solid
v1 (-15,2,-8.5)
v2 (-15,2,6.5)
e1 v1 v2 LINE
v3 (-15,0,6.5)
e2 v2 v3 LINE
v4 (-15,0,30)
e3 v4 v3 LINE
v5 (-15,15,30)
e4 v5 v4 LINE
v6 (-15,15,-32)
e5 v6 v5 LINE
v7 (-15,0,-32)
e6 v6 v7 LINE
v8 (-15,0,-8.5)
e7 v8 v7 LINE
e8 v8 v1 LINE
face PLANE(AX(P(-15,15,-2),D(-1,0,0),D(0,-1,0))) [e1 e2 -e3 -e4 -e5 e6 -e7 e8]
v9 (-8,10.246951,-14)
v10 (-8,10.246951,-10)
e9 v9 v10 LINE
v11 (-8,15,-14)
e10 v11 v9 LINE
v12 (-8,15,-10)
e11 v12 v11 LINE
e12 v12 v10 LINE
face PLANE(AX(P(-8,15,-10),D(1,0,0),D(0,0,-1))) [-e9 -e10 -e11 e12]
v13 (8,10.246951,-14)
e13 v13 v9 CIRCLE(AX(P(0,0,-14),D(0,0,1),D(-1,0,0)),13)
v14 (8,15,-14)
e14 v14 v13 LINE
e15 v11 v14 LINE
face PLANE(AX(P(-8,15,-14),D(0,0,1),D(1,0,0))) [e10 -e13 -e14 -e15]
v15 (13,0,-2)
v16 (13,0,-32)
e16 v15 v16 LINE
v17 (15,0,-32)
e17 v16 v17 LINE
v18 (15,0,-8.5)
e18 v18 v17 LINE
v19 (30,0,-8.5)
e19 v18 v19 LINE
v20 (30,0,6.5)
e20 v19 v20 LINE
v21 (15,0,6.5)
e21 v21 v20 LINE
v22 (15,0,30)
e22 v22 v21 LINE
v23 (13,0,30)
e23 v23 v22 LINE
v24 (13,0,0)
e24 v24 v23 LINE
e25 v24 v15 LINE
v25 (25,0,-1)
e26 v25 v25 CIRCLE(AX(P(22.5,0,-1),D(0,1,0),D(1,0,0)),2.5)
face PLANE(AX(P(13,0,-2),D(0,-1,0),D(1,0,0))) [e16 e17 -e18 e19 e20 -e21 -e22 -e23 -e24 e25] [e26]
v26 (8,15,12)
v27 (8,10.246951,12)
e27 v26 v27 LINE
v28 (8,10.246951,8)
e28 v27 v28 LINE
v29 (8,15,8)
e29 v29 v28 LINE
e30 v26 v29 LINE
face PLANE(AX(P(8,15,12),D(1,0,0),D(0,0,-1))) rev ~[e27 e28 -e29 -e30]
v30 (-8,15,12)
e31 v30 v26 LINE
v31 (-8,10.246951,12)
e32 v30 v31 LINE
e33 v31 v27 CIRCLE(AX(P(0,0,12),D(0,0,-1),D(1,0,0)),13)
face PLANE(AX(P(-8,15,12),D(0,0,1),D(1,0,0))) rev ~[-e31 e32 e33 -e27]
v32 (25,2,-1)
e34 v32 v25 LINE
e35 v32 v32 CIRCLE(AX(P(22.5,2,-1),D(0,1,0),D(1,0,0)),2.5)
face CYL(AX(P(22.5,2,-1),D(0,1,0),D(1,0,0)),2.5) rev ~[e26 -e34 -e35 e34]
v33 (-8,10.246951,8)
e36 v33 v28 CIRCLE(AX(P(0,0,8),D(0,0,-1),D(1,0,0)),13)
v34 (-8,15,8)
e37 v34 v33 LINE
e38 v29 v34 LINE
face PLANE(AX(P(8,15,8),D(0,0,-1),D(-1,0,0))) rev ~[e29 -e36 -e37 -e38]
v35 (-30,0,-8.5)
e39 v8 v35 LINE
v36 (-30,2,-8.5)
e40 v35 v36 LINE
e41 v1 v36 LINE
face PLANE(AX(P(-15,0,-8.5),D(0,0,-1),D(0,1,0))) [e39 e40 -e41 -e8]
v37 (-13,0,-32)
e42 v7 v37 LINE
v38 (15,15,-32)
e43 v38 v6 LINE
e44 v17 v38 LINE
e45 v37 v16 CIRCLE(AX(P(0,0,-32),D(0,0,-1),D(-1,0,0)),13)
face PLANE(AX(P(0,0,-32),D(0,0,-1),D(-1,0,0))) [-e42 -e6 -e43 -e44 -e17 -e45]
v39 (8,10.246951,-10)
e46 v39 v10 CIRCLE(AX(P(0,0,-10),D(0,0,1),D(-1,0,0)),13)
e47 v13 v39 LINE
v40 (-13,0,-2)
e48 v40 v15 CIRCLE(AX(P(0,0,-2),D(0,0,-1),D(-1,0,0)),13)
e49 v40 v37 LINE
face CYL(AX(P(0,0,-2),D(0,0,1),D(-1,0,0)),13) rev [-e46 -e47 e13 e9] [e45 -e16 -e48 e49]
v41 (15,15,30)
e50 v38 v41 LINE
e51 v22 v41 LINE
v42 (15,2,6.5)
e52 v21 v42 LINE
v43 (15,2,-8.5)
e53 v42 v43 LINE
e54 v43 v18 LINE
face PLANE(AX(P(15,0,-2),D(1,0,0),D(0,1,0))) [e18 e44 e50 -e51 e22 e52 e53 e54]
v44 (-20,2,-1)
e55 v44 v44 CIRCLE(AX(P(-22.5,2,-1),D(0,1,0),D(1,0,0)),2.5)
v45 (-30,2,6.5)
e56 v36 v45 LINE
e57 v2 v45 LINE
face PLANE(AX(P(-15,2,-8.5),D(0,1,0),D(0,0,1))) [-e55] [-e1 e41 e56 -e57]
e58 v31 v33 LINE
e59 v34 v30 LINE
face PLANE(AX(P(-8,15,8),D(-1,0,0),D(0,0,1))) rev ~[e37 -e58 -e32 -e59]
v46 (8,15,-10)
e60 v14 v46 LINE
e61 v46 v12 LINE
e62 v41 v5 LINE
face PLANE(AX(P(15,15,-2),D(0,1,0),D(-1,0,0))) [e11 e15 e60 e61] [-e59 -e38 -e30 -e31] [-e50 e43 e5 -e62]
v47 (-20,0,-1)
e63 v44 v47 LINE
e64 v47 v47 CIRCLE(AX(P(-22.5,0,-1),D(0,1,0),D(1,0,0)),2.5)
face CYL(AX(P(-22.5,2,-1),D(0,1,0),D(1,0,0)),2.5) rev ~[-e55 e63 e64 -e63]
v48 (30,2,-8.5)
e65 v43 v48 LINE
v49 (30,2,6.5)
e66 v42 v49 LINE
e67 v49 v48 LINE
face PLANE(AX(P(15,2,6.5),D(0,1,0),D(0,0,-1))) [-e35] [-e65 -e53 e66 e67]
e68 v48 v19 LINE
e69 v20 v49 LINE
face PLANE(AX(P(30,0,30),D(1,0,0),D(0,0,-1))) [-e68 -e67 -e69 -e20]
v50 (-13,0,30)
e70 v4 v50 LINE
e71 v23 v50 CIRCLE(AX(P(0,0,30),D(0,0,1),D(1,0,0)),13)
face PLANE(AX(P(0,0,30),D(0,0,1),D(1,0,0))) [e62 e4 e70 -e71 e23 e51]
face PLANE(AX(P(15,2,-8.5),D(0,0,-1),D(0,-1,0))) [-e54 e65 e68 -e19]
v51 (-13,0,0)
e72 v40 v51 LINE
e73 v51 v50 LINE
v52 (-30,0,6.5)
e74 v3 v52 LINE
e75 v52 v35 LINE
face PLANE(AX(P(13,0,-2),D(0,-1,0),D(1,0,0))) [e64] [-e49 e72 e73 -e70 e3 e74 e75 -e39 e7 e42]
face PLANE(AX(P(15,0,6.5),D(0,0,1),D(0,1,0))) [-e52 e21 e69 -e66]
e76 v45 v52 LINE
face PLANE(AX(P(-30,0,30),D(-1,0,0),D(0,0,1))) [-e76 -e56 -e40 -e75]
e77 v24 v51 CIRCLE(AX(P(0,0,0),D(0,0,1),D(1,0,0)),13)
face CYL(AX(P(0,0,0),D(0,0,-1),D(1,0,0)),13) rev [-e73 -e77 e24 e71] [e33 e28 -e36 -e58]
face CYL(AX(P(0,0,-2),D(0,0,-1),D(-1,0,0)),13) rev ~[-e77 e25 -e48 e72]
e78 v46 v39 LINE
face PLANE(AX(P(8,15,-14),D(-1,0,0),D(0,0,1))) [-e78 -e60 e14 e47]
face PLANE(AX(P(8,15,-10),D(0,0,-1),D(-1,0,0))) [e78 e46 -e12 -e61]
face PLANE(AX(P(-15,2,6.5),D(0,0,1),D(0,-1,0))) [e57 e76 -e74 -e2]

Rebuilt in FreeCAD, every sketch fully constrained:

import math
import FreeCAD as App
import Part
import Sketcher
from FreeCAD import Vector


def add_polygon(sketch, points):
    """Adds a closed chain of lines whose ends are joined by coincident constraints."""
    first, n = sketch.GeometryCount, len(points)
    for a, b in zip(points, points[1:] + points[:1]):
        sketch.addGeometry(Part.LineSegment(App.Vector(*a, 0), App.Vector(*b, 0)), False)
    for i in range(n):
        sketch.addConstraint(Sketcher.Constraint("Coincident", first + i, 2, first + (i + 1) % n, 1))

doc = App.newDocument("Part")
body = doc.addObject("PartDesign::Body", "Body")

sketch1 = body.newObject("Sketcher::SketchObject", "Sketch")
sketch1.AttachmentSupport = (doc.getObject("XY_Plane"), [""])
sketch1.MapMode = "FlatFace"
sketch1.addGeometry([
    Part.LineSegment(Vector(15, 0, 0), Vector(15, 15, 0)),
    Part.LineSegment(Vector(15, 15, 0), Vector(-15, 15, 0)),
    Part.LineSegment(Vector(-15, 15, 0), Vector(-15, 0, 0)),
    Part.LineSegment(Vector(-15, 0, 0), Vector(-13, 0, 0)),
    Part.ArcOfCircle(Part.Circle(Vector(0, 0, 0), Vector(0, 0, 1), 13), math.radians(0), math.radians(180)),
    Part.LineSegment(Vector(13, 0, 0), Vector(15, 0, 0)),
], False)
sketch1.addConstraint([
    Sketcher.Constraint("Coincident", 0, 2, 1, 1),
    Sketcher.Constraint("Coincident", 1, 2, 2, 1),
    Sketcher.Constraint("Coincident", 2, 2, 3, 1),
    Sketcher.Constraint("Coincident", 3, 2, 4, 2),
    Sketcher.Constraint("Coincident", 4, 1, 5, 1),
    Sketcher.Constraint("Coincident", 5, 2, 0, 1),
    Sketcher.Constraint("Vertical", 0),
    Sketcher.Constraint("Horizontal", 1),
    Sketcher.Constraint("Vertical", 2),
    Sketcher.Constraint("Horizontal", 3),
    Sketcher.Constraint("Horizontal", 5),
    Sketcher.Constraint("Coincident", 4, 3, -1, 1),
    Sketcher.Constraint("Symmetric", 2, 2, 5, 2, -1, 1),
    Sketcher.Constraint("PointOnObject", 2, 2, -1),
    Sketcher.Constraint("DistanceX", 1, 2, 1, 1, 30.0),
    Sketcher.Constraint("Radius", 4, 13.0),
    Sketcher.Constraint("DistanceY", 0, 1, 0, 2, 15.0),
])
pad1 = body.newObject("PartDesign::Pad", "Pad")
pad1.Profile = sketch1
pad1.Length = 30

sketch2 = body.newObject("Sketcher::SketchObject", "Sketch001")
sketch2.AttachmentSupport = (doc.getObject("XY_Plane"), [""])
sketch2.MapMode = "FlatFace"
add_polygon(sketch2, [(15, 15), (15, 0), (-15, 0), (-15, 15)])
sketch2.addConstraint([
    Sketcher.Constraint("Vertical", 0),
    Sketcher.Constraint("Horizontal", 1),
    Sketcher.Constraint("Vertical", 2),
    Sketcher.Constraint("Horizontal", 3),
    Sketcher.Constraint("Symmetric", 0, 2, 1, 2, -1, 1),
    Sketcher.Constraint("DistanceX", 1, 2, 1, 1, 30.0),
    Sketcher.Constraint("DistanceY", 0, 2, 0, 1, 15.0),
])
pad2 = body.newObject("PartDesign::Pad", "Pad001")
pad2.Profile = sketch2
pad2.Length = 2
pad2.Reversed = True

sketch3 = body.newObject("Sketcher::SketchObject", "Sketch002")
sketch3.AttachmentSupport = (doc.getObject("XY_Plane"), [""])
sketch3.MapMode = "FlatFace"
sketch3.AttachmentOffset = App.Placement(Vector(0, 0, -2), App.Rotation())
sketch3.addGeometry([
    Part.LineSegment(Vector(15, 15, 0), Vector(15, 0, 0)),
    Part.LineSegment(Vector(15, 0, 0), Vector(13, 0, 0)),
    Part.ArcOfCircle(Part.Circle(Vector(0, 0, 0), Vector(0, 0, 1), 13), math.radians(0), math.radians(180)),
    Part.LineSegment(Vector(-13, 0, 0), Vector(-15, 0, 0)),
    Part.LineSegment(Vector(-15, 0, 0), Vector(-15, 15, 0)),
    Part.LineSegment(Vector(-15, 15, 0), Vector(15, 15, 0)),
], False)
sketch3.addConstraint([
    Sketcher.Constraint("Coincident", 0, 2, 1, 1),
    Sketcher.Constraint("Coincident", 1, 2, 2, 1),
    Sketcher.Constraint("Coincident", 2, 2, 3, 1),
    Sketcher.Constraint("Coincident", 3, 2, 4, 1),
    Sketcher.Constraint("Coincident", 4, 2, 5, 1),
    Sketcher.Constraint("Coincident", 5, 2, 0, 1),
    Sketcher.Constraint("Vertical", 0),
    Sketcher.Constraint("Horizontal", 1),
    Sketcher.Constraint("Horizontal", 3),
    Sketcher.Constraint("Vertical", 4),
    Sketcher.Constraint("Horizontal", 5),
    Sketcher.Constraint("Coincident", 2, 3, -1, 1),
    Sketcher.Constraint("Symmetric", 0, 2, 3, 2, -1, 1),
    Sketcher.Constraint("PointOnObject", 0, 2, -1),
    Sketcher.Constraint("Radius", 2, 13.0),
    Sketcher.Constraint("DistanceX", 1, 2, 1, 1, 2.0),
    Sketcher.Constraint("DistanceY", 0, 2, 0, 1, 15.0),
])
pad3 = body.newObject("PartDesign::Pad", "Pad002")
pad3.Profile = sketch3
pad3.Length = 30
pad3.Reversed = True

sketch4 = body.newObject("Sketcher::SketchObject", "Sketch003")
sketch4.AttachmentSupport = (doc.getObject("YZ_Plane"), [""])
sketch4.MapMode = "FlatFace"
sketch4.AttachmentOffset = App.Placement(Vector(0, 0, 15), App.Rotation())
add_polygon(sketch4, [(0, 6.5), (0, -8.5), (2, -8.5), (2, 6.5)])
sketch4.addConstraint([
    Sketcher.Constraint("Vertical", 0),
    Sketcher.Constraint("Horizontal", 1),
    Sketcher.Constraint("Vertical", 2),
    Sketcher.Constraint("Horizontal", 3),
    Sketcher.Constraint("PointOnObject", 0, 2, -2),
    Sketcher.Constraint("DistanceY", 0, 2, 0, 1, 15.0),
    Sketcher.Constraint("DistanceX", 1, 1, 1, 2, 2.0),
    Sketcher.Constraint("DistanceY", 0, 2, -1, 1, 8.5),
])
pad4 = body.newObject("PartDesign::Pad", "Pad003")
pad4.Profile = sketch4
pad4.Length = 15

sketch5 = body.newObject("Sketcher::SketchObject", "Sketch004")
sketch5.AttachmentSupport = (doc.getObject("YZ_Plane"), [""])
sketch5.MapMode = "FlatFace"
sketch5.AttachmentOffset = App.Placement(Vector(0, 0, -15), App.Rotation())
add_polygon(sketch5, [(0, -8.5), (0, 6.5), (2, 6.5), (2, -8.5)])
sketch5.addConstraint([
    Sketcher.Constraint("Vertical", 0),
    Sketcher.Constraint("Horizontal", 1),
    Sketcher.Constraint("Vertical", 2),
    Sketcher.Constraint("Horizontal", 3),
    Sketcher.Constraint("PointOnObject", 0, 2, -2),
    Sketcher.Constraint("DistanceX", 1, 1, 1, 2, 2.0),
    Sketcher.Constraint("DistanceY", 0, 1, 0, 2, 15.0),
    Sketcher.Constraint("DistanceY", -1, 1, 0, 2, 6.5),
])
pad5 = body.newObject("PartDesign::Pad", "Pad004")
pad5.Profile = sketch5
pad5.Length = 15
pad5.Reversed = True

sketch6 = body.newObject("Sketcher::SketchObject", "Sketch005")
sketch6.AttachmentSupport = (doc.getObject("XZ_Plane"), [""])
sketch6.MapMode = "FlatFace"
sketch6.AttachmentOffset = App.Placement(Vector(0, 0, -15), App.Rotation())
add_polygon(sketch6, [(8, 12), (8, 8), (-8, 8), (-8, 12)])
add_polygon(sketch6, [(8, -14), (-8, -14), (-8, -10), (8, -10)])
sketch6.addConstraint([
    Sketcher.Constraint("Vertical", 0),
    Sketcher.Constraint("Horizontal", 1),
    Sketcher.Constraint("Vertical", 2),
    Sketcher.Constraint("Horizontal", 3),
    Sketcher.Constraint("Horizontal", 4),
    Sketcher.Constraint("Vertical", 5),
    Sketcher.Constraint("Horizontal", 6),
    Sketcher.Constraint("Vertical", 7),
    Sketcher.Constraint("Vertical", 2, 2, 4, 2),
    Sketcher.Constraint("Vertical", 3, 2, 6, 2),
    Sketcher.Constraint("Equal", 2, 5),
    Sketcher.Constraint("DistanceX", 1, 2, 1, 1, 16.0),
    Sketcher.Constraint("DistanceY", 0, 2, 0, 1, 4.0),
    Sketcher.Constraint("DistanceX", -1, 1, 0, 2, 8.0),
    Sketcher.Constraint("DistanceY", -1, 1, 0, 2, 8.0),
    Sketcher.Constraint("DistanceY", 4, 2, -1, 1, 14.0),
])
pocket1 = body.newObject("PartDesign::Pocket", "Pocket")
pocket1.Profile = sketch6
pocket1.Type = "ThroughAll"
pocket1.Reversed = True

sketch7 = body.newObject("Sketcher::SketchObject", "Sketch006")
sketch7.AttachmentSupport = (doc.getObject("XZ_Plane"), [""])
sketch7.MapMode = "FlatFace"
sketch7.AttachmentOffset = App.Placement(Vector(0, 0, -2), App.Rotation())
sketch7.addGeometry(Part.Circle(Vector(-22.5, -1, 0), Vector(0, 0, 1), 2.5), False)
sketch7.addConstraint([
    Sketcher.Constraint("Diameter", 0, 5.0),
    Sketcher.Constraint("DistanceY", 0, 3, -1, 1, 1.0),
    Sketcher.Constraint("DistanceX", 0, 3, -1, 1, 22.5),
])
pocket2 = body.newObject("PartDesign::Pocket", "Pocket001")
pocket2.Profile = sketch7
pocket2.Type = "ThroughAll"
pocket2.Reversed = True

sketch8 = body.newObject("Sketcher::SketchObject", "Sketch007")
sketch8.AttachmentSupport = (doc.getObject("XZ_Plane"), [""])
sketch8.MapMode = "FlatFace"
sketch8.AttachmentOffset = App.Placement(Vector(0, 0, -2), App.Rotation())
sketch8.addGeometry(Part.Circle(Vector(22.5, -1, 0), Vector(0, 0, 1), 2.5), False)
sketch8.addConstraint([
    Sketcher.Constraint("Diameter", 0, 5.0),
    Sketcher.Constraint("DistanceY", 0, 3, -1, 1, 1.0),
    Sketcher.Constraint("DistanceX", -1, 1, 0, 3, 22.5),
])
pocket3 = body.newObject("PartDesign::Pocket", "Pocket002")
pocket3.Profile = sketch8
pocket3.Length = 10
pocket3.Reversed = True

sketch9 = body.newObject("Sketcher::SketchObject", "Sketch008")
sketch9.AttachmentSupport = (doc.getObject("XY_Plane"), [""])
sketch9.MapMode = "FlatFace"
sketch9.AttachmentOffset = App.Placement(Vector(0, 0, -2), App.Rotation())
sketch9.addGeometry(Part.Circle(Vector(0, 0, 0), Vector(0, 0, 1), 13), False)
sketch9.addConstraint([
    Sketcher.Constraint("Coincident", 0, 3, -1, 1),
    Sketcher.Constraint("Diameter", 0, 26.0),
])
pocket4 = body.newObject("PartDesign::Pocket", "Pocket003")
pocket4.Profile = sketch9
pocket4.Length = 2
pocket4.Reversed = True

doc.recompute()
